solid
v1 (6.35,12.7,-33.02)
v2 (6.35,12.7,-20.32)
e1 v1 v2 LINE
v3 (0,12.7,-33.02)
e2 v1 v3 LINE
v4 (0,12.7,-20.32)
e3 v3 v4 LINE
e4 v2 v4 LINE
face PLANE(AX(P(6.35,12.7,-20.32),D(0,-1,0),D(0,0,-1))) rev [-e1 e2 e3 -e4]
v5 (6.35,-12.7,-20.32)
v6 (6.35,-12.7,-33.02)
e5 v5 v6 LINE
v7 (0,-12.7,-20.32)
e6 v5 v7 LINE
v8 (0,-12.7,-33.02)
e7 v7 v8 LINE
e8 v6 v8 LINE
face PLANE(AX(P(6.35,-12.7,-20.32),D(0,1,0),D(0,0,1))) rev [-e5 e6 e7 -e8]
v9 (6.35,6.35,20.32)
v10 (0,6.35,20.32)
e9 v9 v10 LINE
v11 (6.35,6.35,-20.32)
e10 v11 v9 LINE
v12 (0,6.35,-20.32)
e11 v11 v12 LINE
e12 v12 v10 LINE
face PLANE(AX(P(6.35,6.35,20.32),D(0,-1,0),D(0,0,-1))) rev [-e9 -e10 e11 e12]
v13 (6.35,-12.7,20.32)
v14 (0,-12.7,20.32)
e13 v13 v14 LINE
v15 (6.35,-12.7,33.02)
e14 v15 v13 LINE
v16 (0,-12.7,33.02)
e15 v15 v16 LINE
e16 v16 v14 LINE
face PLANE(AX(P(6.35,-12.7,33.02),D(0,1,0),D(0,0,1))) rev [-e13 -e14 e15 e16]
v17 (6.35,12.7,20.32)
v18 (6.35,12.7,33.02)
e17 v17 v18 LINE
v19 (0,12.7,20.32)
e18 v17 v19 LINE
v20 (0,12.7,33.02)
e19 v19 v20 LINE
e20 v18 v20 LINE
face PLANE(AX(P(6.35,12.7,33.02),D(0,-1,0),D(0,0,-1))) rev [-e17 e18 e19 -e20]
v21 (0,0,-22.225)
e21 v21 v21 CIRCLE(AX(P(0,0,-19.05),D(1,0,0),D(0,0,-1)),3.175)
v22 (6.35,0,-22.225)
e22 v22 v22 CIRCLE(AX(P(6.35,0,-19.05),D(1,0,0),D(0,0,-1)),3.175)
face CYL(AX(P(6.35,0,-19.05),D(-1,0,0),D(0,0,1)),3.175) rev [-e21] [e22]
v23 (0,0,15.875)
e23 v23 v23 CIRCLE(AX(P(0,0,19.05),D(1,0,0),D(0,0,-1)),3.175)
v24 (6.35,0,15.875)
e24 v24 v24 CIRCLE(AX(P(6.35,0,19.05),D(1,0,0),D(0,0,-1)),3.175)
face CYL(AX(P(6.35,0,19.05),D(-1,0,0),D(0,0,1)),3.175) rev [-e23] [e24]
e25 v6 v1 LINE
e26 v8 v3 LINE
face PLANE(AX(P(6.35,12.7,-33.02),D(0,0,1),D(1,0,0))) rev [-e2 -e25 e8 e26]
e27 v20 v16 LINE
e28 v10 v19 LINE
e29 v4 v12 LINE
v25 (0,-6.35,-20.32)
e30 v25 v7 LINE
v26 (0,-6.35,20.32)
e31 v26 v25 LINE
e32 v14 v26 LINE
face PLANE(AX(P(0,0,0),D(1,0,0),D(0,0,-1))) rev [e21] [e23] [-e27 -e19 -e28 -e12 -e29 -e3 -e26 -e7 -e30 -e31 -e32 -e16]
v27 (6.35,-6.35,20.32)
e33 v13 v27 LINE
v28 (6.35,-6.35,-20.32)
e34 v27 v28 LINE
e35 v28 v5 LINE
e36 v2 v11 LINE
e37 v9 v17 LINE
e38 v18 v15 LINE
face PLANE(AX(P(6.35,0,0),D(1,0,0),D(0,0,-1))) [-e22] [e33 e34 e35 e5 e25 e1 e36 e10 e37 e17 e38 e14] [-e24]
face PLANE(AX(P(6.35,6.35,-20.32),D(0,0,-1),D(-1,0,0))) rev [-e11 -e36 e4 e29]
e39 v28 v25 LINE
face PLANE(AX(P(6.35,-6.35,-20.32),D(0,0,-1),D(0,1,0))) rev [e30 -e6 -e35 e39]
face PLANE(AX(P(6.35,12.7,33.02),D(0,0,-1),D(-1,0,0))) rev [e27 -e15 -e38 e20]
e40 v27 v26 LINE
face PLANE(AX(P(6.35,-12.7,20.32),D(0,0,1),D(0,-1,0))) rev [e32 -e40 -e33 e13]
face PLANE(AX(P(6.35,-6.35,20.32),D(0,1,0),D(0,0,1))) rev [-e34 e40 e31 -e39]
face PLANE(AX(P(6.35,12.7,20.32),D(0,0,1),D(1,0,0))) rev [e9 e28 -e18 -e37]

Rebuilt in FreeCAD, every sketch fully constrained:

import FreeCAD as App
import Part
import Sketcher
from FreeCAD import Vector
Q = App.Units.Quantity


def add_polygon(sketch, points):
    """Adds a closed chain of lines whose ends are joined by coincident constraints."""
    first, n = sketch.GeometryCount, len(points)
    for a, b in zip(points, points[1:] + points[:1]):
        sketch.addGeometry(Part.LineSegment(App.Vector(*a, 0), App.Vector(*b, 0)), False)
    for i in range(n):
        sketch.addConstraint(Sketcher.Constraint("Coincident", first + i, 2, first + (i + 1) % n, 1))

doc = App.newDocument("Part")
body = doc.addObject("PartDesign::Body", "Body")

# Sketch on YZ plane
sketch1 = doc.addObject("Sketcher::SketchObject", "Sketch")
body.addObject(sketch1)
sketch1.AttachmentSupport = (doc.YZ_Plane, [""])
sketch1.MapMode = "FlatFace"
add_polygon(sketch1, [(6.35, 20.32), (12.7, 20.32), (12.7, 33.02), (-12.7, 33.02), (-12.7, 20.32), (-6.35, 20.32), (-6.35, -20.32), (-12.7, -20.32), (-12.7, -33.02), (12.7, -33.02), (12.7, -20.32), (6.35, -20.32)])  # lines 0-11
sketch1.addGeometry(Part.Circle(Vector(0, -19.05, 0), Vector(0, 0, 1), 3.175), False)  # 12
sketch1.addGeometry(Part.Circle(Vector(0, 19.05, 0), Vector(0, 0, 1), 3.175), False)  # 13
sketch1.addConstraint(Sketcher.Constraint("Horizontal", 0))
sketch1.addConstraint(Sketcher.Constraint("Vertical", 1))
sketch1.addConstraint(Sketcher.Constraint("Horizontal", 2))
sketch1.addConstraint(Sketcher.Constraint("Vertical", 3))
sketch1.addConstraint(Sketcher.Constraint("Horizontal", 4))
sketch1.addConstraint(Sketcher.Constraint("Vertical", 5))
sketch1.addConstraint(Sketcher.Constraint("Horizontal", 6))
sketch1.addConstraint(Sketcher.Constraint("Vertical", 7))
sketch1.addConstraint(Sketcher.Constraint("Horizontal", 8))
sketch1.addConstraint(Sketcher.Constraint("Vertical", 9))
sketch1.addConstraint(Sketcher.Constraint("Horizontal", 10))
sketch1.addConstraint(Sketcher.Constraint("Vertical", 11))
sketch1.addConstraint(Sketcher.Constraint("Equal", 12, 13))
sketch1.addConstraint(Sketcher.Constraint("Symmetric", 12, 3, 13, 3, -1, 1))
sketch1.addConstraint(Sketcher.Constraint("Symmetric", 0, 2, 6, 2, -1, 1))
sketch1.addConstraint(Sketcher.Constraint("Symmetric", 2, 2, 8, 2, -1, 1))
sketch1.addConstraint(Sketcher.Constraint("Symmetric", 4, 2, 10, 2, -1, 1))
sketch1.addConstraint(Sketcher.Constraint("Symmetric", 0, 2, 3, 2, -2))
sketch1.addConstraint(Sketcher.Constraint("PointOnObject", 12, 3, -2))
sketch1.addConstraint(Sketcher.Constraint("Diameter", 12, Q("0.25 in")))
sketch1.addConstraint(Sketcher.Constraint("DistanceX", 2, 2, 2, 1, Q("1 in")))
sketch1.addConstraint(Sketcher.Constraint("DistanceY", 1, 1, 1, 2, Q("0.5 in")))
sketch1.addConstraint(Sketcher.Constraint("DistanceY", 5, 2, 5, 1, Q("1.6 in")))
sketch1.addConstraint(Sketcher.Constraint("DistanceX", 0, 1, 0, 2, Q("0.25 in")))
sketch1.addConstraint(Sketcher.Constraint("DistanceY", 12, 3, 13, 3, Q("1.5 in")))
pad1 = doc.addObject("PartDesign::Pad", "Pad")
body.addObject(pad1)
pad1.Profile = sketch1
pad1.Length = Q("0.25 in")

doc.recompute()
